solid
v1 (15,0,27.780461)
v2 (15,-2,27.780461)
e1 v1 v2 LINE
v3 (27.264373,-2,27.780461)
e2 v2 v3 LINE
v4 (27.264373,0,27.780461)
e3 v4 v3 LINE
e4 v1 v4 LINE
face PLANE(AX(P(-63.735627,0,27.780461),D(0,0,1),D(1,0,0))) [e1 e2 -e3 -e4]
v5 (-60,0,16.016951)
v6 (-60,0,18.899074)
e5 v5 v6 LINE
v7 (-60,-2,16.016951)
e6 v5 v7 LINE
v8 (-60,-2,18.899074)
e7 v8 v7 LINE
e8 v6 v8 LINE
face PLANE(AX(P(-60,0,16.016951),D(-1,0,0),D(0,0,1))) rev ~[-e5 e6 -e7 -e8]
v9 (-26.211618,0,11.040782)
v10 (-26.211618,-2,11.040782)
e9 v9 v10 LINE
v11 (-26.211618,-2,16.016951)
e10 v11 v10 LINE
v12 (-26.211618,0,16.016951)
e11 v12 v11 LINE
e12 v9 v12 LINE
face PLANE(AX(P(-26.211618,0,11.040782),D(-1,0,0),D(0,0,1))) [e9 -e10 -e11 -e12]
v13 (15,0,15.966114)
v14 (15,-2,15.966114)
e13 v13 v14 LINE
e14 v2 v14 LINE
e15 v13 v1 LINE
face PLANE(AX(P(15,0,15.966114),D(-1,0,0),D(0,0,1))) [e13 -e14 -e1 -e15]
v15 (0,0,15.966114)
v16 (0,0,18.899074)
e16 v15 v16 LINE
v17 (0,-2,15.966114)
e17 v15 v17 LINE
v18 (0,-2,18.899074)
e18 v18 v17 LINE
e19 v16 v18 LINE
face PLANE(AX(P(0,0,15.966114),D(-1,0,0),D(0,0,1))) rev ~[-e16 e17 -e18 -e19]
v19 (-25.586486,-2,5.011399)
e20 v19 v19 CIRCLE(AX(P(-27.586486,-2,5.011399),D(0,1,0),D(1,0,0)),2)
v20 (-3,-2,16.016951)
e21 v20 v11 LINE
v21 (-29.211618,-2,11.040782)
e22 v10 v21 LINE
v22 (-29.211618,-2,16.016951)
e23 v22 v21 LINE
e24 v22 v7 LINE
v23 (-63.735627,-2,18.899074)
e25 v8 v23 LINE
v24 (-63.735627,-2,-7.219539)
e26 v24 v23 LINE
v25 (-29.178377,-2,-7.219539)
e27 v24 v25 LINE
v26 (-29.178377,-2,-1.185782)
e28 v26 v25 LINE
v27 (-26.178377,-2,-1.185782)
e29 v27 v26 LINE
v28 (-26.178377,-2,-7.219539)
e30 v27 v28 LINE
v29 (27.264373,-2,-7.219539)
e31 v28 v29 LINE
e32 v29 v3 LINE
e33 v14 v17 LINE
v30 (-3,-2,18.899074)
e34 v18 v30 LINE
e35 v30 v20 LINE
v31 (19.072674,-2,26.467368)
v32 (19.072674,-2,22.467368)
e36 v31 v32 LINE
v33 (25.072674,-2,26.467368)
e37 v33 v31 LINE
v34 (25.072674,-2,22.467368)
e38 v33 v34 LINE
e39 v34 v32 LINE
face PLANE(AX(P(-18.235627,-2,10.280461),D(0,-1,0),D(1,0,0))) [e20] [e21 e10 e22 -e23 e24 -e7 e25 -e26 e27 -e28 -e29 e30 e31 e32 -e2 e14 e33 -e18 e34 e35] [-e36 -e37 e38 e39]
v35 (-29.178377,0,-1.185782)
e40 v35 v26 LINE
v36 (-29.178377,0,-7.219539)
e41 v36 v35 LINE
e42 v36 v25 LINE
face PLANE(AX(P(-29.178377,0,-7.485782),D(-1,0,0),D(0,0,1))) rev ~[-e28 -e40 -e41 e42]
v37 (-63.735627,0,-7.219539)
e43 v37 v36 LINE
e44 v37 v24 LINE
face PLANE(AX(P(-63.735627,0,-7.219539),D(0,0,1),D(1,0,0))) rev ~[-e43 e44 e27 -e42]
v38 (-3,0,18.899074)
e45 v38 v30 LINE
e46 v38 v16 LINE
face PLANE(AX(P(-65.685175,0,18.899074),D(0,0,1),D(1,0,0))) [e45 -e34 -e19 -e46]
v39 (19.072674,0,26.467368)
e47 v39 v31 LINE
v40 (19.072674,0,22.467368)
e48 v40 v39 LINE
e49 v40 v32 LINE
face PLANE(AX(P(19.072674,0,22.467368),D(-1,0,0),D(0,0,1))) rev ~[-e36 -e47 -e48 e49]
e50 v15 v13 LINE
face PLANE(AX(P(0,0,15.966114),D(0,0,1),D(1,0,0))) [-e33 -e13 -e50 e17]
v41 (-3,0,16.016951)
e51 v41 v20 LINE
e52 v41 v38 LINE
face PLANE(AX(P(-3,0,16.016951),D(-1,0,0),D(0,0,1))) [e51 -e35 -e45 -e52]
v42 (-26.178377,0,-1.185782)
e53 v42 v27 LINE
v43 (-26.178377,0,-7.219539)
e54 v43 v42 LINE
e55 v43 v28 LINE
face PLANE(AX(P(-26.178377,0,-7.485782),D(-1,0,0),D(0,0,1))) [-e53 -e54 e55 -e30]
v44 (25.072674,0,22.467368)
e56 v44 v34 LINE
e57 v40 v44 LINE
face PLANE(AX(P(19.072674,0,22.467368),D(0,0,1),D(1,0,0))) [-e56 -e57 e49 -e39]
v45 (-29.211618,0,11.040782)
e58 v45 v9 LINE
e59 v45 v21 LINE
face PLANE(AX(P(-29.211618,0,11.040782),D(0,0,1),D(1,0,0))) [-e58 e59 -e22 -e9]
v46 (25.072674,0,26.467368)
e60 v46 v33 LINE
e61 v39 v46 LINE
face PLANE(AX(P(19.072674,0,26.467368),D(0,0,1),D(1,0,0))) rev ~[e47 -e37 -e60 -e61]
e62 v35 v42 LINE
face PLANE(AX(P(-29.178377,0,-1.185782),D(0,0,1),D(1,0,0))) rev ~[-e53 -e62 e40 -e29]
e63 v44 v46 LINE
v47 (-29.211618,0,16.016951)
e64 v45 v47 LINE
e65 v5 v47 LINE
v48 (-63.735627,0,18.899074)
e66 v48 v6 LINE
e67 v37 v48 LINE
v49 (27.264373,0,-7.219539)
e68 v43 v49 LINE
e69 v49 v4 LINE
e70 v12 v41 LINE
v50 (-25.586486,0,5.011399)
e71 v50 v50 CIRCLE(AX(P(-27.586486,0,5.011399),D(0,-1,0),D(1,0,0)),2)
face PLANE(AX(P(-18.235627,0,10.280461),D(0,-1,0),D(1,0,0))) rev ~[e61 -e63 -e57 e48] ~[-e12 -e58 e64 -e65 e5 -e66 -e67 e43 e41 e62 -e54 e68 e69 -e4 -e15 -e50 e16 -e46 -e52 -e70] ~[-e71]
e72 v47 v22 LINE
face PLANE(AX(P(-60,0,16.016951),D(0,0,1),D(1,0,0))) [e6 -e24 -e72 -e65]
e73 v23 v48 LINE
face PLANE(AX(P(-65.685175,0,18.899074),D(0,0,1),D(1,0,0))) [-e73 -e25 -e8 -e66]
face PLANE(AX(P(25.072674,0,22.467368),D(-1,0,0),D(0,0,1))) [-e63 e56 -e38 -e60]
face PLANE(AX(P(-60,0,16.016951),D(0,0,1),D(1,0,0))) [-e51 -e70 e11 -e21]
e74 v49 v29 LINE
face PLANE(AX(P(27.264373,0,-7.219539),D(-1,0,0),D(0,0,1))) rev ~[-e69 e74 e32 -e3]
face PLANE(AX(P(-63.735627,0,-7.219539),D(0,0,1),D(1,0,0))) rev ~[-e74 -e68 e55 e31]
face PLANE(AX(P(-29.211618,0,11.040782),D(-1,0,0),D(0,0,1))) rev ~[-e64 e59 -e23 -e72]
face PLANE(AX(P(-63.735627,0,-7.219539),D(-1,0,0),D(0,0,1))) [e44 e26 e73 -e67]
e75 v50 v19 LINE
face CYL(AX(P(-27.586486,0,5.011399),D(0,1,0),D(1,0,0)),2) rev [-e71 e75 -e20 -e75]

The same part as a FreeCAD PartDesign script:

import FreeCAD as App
import Part
import Sketcher
from FreeCAD import Vector
Q = App.Units.Quantity


def add_polygon(sketch, points):
    """Adds a closed chain of lines whose ends are joined by coincident constraints."""
    first, n = sketch.GeometryCount, len(points)
    for a, b in zip(points, points[1:] + points[:1]):
        sketch.addGeometry(Part.LineSegment(App.Vector(*a, 0), App.Vector(*b, 0)), False)
    for i in range(n):
        sketch.addConstraint(Sketcher.Constraint("Coincident", first + i, 2, first + (i + 1) % n, 1))

doc = App.newDocument("Part")
body = doc.addObject("PartDesign::Body", "Body")

# Sketch on XZ plane
sketch1 = body.newObject("Sketcher::SketchObject", "Sketch")
sketch1.AttachmentSupport = (doc.getObject("XZ_Plane"), [""])
sketch1.MapMode = "FlatFace"
add_polygon(sketch1, [(-63.735627, 27.780461), (-63.735627, -7.219539), (27.264373, -7.219539), (27.264373, 27.780461)])  # lines 0-3
sketch1.addConstraint(Sketcher.Constraint("Vertical", 0))
sketch1.addConstraint(Sketcher.Constraint("Horizontal", 1))
sketch1.addConstraint(Sketcher.Constraint("Vertical", 2))
sketch1.addConstraint(Sketcher.Constraint("Horizontal", 3))
sketch1.addConstraint(Sketcher.Constraint("DistanceX", 1, 1, 1, 2, Q("91 mm")))
sketch1.addConstraint(Sketcher.Constraint("DistanceY", 0, 2, 0, 1, Q("35 mm")))
sketch1.addConstraint(Sketcher.Constraint("DistanceY", 0, 2, -1, 1, Q("7.219539 mm")))
sketch1.addConstraint(Sketcher.Constraint("DistanceX", 0, 2, -1, 1, Q("63.735627 mm")))
pad1 = body.newObject("PartDesign::Pad", "Pad")
pad1.Profile = sketch1
pad1.Length = 2

# Sketch on XZ plane
sketch2 = body.newObject("Sketcher::SketchObject", "Sketch001")
sketch2.AttachmentSupport = (doc.getObject("XZ_Plane"), [""])
sketch2.MapMode = "FlatFace"
add_polygon(sketch2, [(0, 27.966114), (0, 15.966114), (15, 15.966114), (15, 27.966114)])  # lines 0-3
sketch2.addConstraint(Sketcher.Constraint("Vertical", 0))
sketch2.addConstraint(Sketcher.Constraint("Horizontal", 1))
sketch2.addConstraint(Sketcher.Constraint("Vertical", 2))
sketch2.addConstraint(Sketcher.Constraint("Horizontal", 3))
sketch2.addConstraint(Sketcher.Constraint("PointOnObject", 0, 2, -2))
sketch2.addConstraint(Sketcher.Constraint("DistanceX", 1, 1, 1, 2, Q("15 mm")))
sketch2.addConstraint(Sketcher.Constraint("DistanceY", 0, 2, 0, 1, Q("12 mm")))
sketch2.addConstraint(Sketcher.Constraint("DistanceY", -1, 1, 0, 2, Q("15.966114 mm")))
pocket1 = body.newObject("PartDesign::Pocket", "Pocket")
pocket1.Profile = sketch2
pocket1.Length = 3
pocket1.Reversed = True

# Sketch on XZ plane
sketch3 = body.newObject("Sketcher::SketchObject", "Sketch002")
sketch3.AttachmentSupport = (doc.getObject("XZ_Plane"), [""])
sketch3.MapMode = "FlatFace"
add_polygon(sketch3, [(-65.685175, 18.899074), (0, 18.899074), (0, 28.964864), (-65.685175, 28.964864)])  # lines 0-3
sketch3.addConstraint(Sketcher.Constraint("Horizontal", 0))
sketch3.addConstraint(Sketcher.Constraint("Vertical", 1))
sketch3.addConstraint(Sketcher.Constraint("Horizontal", 2))
sketch3.addConstraint(Sketcher.Constraint("Vertical", 3))
sketch3.addConstraint(Sketcher.Constraint("PointOnObject", 0, 2, -2))
sketch3.addConstraint(Sketcher.Constraint("DistanceY", 1, 1, 1, 2, Q("10.06579 mm")))
sketch3.addConstraint(Sketcher.Constraint("DistanceX", 0, 1, 0, 2, Q("65.685175 mm")))
sketch3.addConstraint(Sketcher.Constraint("DistanceY", -1, 1, 0, 2, Q("18.899074 mm")))
pocket2 = body.newObject("PartDesign::Pocket", "Pocket001")
pocket2.Profile = sketch3
pocket2.Length = 5
pocket2.Reversed = True

# Sketch on XZ plane
sketch4 = body.newObject("Sketcher::SketchObject", "Sketch003")
sketch4.AttachmentSupport = (doc.getObject("XZ_Plane"), [""])
sketch4.MapMode = "FlatFace"
add_polygon(sketch4, [(-60, 19.016951), (-60, 16.016951), (-3, 16.016951), (-3, 19.016951)])  # lines 0-3
sketch4.addConstraint(Sketcher.Constraint("Vertical", 0))
sketch4.addConstraint(Sketcher.Constraint("Horizontal", 1))
sketch4.addConstraint(Sketcher.Constraint("Vertical", 2))
sketch4.addConstraint(Sketcher.Constraint("Horizontal", 3))
sketch4.addConstraint(Sketcher.Constraint("DistanceX", 1, 1, 1, 2, Q("57 mm")))
sketch4.addConstraint(Sketcher.Constraint("DistanceY", 0, 2, 0, 1, Q("3 mm")))
sketch4.addConstraint(Sketcher.Constraint("DistanceX", 0, 2, -1, 1, Q("60 mm")))
sketch4.addConstraint(Sketcher.Constraint("DistanceY", -1, 1, 0, 2, Q("16.016951 mm")))
pocket3 = body.newObject("PartDesign::Pocket", "Pocket002")
pocket3.Profile = sketch4
pocket3.Length = 3
pocket3.Reversed = True

# Sketch on XZ plane
sketch5 = body.newObject("Sketcher::SketchObject", "Sketch004")
sketch5.AttachmentSupport = (doc.getObject("XZ_Plane"), [""])
sketch5.MapMode = "FlatFace"
add_polygon(sketch5, [(-29.211618, 16.040782), (-29.211618, 11.040782), (-26.211618, 11.040782), (-26.211618, 16.040782)])  # lines 0-3
sketch5.addConstraint(Sketcher.Constraint("Vertical", 0))
sketch5.addConstraint(Sketcher.Constraint("Horizontal", 1))
sketch5.addConstraint(Sketcher.Constraint("Vertical", 2))
sketch5.addConstraint(Sketcher.Constraint("Horizontal", 3))
sketch5.addConstraint(Sketcher.Constraint("DistanceX", 1, 1, 1, 2, Q("3 mm")))
sketch5.addConstraint(Sketcher.Constraint("DistanceY", 0, 2, 0, 1, Q("5 mm")))
sketch5.addConstraint(Sketcher.Constraint("DistanceX", 0, 2, -1, 1, Q("29.211618 mm")))
sketch5.addConstraint(Sketcher.Constraint("DistanceY", -1, 1, 2, 2, Q("16.040782 mm")))
pocket4 = body.newObject("PartDesign::Pocket", "Pocket003")
pocket4.Profile = sketch5
pocket4.Length = 9
pocket4.Reversed = True

# Sketch on XZ plane
sketch6 = body.newObject("Sketcher::SketchObject", "Sketch005")
sketch6.AttachmentSupport = (doc.getObject("XZ_Plane"), [""])
sketch6.MapMode = "FlatFace"
add_polygon(sketch6, [(-29.178377, -1.185782), (-29.178377, -7.485782), (-26.178377, -7.485782), (-26.178377, -1.185782)])  # lines 0-3
sketch6.addConstraint(Sketcher.Constraint("Vertical", 0))
sketch6.addConstraint(Sketcher.Constraint("Horizontal", 1))
sketch6.addConstraint(Sketcher.Constraint("Vertical", 2))
sketch6.addConstraint(Sketcher.Constraint("Horizontal", 3))
sketch6.addConstraint(Sketcher.Constraint("DistanceX", 1, 1, 1, 2, Q("3 mm")))
sketch6.addConstraint(Sketcher.Constraint("DistanceY", 0, 2, 0, 1, Q("6.3 mm")))
sketch6.addConstraint(Sketcher.Constraint("DistanceY", 2, 2, -1, 1, Q("1.185782 mm")))
sketch6.addConstraint(Sketcher.Constraint("DistanceX", 0, 2, -1, 1, Q("29.178377 mm")))
pocket5 = body.newObject("PartDesign::Pocket", "Pocket004")
pocket5.Profile = sketch6
pocket5.Length = 4
pocket5.Reversed = True

# Sketch on XZ plane
sketch7 = body.newObject("Sketcher::SketchObject", "Sketch006")
sketch7.AttachmentSupport = (doc.getObject("XZ_Plane"), [""])
sketch7.MapMode = "FlatFace"
sketch7.addGeometry(Part.Circle(Vector(-27.586486, 5.011399, 0), Vector(0, 0, 1), 2), False)
sketch7.addConstraint(Sketcher.Constraint("Diameter", 0, Q("4 mm")))
sketch7.addConstraint(Sketcher.Constraint("DistanceY", -1, 1, 0, 3, Q("5.011399 mm")))
sketch7.addConstraint(Sketcher.Constraint("DistanceX", 0, 3, -1, 1, Q("27.586486 mm")))
pocket6 = body.newObject("PartDesign::Pocket", "Pocket005")
pocket6.Profile = sketch7
pocket6.Length = 4
pocket6.Reversed = True

# Sketch on XZ plane
sketch8 = body.newObject("Sketcher::SketchObject", "Sketch007")
sketch8.AttachmentSupport = (doc.getObject("XZ_Plane"), [""])
sketch8.MapMode = "FlatFace"
add_polygon(sketch8, [(19.072674, 26.467368), (19.072674, 22.467368), (25.072674, 22.467368), (25.072674, 26.467368)])  # lines 0-3
sketch8.addConstraint(Sketcher.Constraint("Vertical", 0))
sketch8.addConstraint(Sketcher.Constraint("Horizontal", 1))
sketch8.addConstraint(Sketcher.Constraint("Vertical", 2))
sketch8.addConstraint(Sketcher.Constraint("Horizontal", 3))
sketch8.addConstraint(Sketcher.Constraint("DistanceX", 1, 1, 1, 2, Q("6 mm")))
sketch8.addConstraint(Sketcher.Constraint("DistanceY", 0, 2, 0, 1, Q("4 mm")))
sketch8.addConstraint(Sketcher.Constraint("DistanceY", -1, 1, 0, 2, Q("22.467368 mm")))
sketch8.addConstraint(Sketcher.Constraint("DistanceX", -1, 1, 0, 2, Q("19.072674 mm")))
pocket7 = body.newObject("PartDesign::Pocket", "Pocket006")
pocket7.Profile = sketch8
pocket7.Length = 4
pocket7.Reversed = True

doc.recompute()
